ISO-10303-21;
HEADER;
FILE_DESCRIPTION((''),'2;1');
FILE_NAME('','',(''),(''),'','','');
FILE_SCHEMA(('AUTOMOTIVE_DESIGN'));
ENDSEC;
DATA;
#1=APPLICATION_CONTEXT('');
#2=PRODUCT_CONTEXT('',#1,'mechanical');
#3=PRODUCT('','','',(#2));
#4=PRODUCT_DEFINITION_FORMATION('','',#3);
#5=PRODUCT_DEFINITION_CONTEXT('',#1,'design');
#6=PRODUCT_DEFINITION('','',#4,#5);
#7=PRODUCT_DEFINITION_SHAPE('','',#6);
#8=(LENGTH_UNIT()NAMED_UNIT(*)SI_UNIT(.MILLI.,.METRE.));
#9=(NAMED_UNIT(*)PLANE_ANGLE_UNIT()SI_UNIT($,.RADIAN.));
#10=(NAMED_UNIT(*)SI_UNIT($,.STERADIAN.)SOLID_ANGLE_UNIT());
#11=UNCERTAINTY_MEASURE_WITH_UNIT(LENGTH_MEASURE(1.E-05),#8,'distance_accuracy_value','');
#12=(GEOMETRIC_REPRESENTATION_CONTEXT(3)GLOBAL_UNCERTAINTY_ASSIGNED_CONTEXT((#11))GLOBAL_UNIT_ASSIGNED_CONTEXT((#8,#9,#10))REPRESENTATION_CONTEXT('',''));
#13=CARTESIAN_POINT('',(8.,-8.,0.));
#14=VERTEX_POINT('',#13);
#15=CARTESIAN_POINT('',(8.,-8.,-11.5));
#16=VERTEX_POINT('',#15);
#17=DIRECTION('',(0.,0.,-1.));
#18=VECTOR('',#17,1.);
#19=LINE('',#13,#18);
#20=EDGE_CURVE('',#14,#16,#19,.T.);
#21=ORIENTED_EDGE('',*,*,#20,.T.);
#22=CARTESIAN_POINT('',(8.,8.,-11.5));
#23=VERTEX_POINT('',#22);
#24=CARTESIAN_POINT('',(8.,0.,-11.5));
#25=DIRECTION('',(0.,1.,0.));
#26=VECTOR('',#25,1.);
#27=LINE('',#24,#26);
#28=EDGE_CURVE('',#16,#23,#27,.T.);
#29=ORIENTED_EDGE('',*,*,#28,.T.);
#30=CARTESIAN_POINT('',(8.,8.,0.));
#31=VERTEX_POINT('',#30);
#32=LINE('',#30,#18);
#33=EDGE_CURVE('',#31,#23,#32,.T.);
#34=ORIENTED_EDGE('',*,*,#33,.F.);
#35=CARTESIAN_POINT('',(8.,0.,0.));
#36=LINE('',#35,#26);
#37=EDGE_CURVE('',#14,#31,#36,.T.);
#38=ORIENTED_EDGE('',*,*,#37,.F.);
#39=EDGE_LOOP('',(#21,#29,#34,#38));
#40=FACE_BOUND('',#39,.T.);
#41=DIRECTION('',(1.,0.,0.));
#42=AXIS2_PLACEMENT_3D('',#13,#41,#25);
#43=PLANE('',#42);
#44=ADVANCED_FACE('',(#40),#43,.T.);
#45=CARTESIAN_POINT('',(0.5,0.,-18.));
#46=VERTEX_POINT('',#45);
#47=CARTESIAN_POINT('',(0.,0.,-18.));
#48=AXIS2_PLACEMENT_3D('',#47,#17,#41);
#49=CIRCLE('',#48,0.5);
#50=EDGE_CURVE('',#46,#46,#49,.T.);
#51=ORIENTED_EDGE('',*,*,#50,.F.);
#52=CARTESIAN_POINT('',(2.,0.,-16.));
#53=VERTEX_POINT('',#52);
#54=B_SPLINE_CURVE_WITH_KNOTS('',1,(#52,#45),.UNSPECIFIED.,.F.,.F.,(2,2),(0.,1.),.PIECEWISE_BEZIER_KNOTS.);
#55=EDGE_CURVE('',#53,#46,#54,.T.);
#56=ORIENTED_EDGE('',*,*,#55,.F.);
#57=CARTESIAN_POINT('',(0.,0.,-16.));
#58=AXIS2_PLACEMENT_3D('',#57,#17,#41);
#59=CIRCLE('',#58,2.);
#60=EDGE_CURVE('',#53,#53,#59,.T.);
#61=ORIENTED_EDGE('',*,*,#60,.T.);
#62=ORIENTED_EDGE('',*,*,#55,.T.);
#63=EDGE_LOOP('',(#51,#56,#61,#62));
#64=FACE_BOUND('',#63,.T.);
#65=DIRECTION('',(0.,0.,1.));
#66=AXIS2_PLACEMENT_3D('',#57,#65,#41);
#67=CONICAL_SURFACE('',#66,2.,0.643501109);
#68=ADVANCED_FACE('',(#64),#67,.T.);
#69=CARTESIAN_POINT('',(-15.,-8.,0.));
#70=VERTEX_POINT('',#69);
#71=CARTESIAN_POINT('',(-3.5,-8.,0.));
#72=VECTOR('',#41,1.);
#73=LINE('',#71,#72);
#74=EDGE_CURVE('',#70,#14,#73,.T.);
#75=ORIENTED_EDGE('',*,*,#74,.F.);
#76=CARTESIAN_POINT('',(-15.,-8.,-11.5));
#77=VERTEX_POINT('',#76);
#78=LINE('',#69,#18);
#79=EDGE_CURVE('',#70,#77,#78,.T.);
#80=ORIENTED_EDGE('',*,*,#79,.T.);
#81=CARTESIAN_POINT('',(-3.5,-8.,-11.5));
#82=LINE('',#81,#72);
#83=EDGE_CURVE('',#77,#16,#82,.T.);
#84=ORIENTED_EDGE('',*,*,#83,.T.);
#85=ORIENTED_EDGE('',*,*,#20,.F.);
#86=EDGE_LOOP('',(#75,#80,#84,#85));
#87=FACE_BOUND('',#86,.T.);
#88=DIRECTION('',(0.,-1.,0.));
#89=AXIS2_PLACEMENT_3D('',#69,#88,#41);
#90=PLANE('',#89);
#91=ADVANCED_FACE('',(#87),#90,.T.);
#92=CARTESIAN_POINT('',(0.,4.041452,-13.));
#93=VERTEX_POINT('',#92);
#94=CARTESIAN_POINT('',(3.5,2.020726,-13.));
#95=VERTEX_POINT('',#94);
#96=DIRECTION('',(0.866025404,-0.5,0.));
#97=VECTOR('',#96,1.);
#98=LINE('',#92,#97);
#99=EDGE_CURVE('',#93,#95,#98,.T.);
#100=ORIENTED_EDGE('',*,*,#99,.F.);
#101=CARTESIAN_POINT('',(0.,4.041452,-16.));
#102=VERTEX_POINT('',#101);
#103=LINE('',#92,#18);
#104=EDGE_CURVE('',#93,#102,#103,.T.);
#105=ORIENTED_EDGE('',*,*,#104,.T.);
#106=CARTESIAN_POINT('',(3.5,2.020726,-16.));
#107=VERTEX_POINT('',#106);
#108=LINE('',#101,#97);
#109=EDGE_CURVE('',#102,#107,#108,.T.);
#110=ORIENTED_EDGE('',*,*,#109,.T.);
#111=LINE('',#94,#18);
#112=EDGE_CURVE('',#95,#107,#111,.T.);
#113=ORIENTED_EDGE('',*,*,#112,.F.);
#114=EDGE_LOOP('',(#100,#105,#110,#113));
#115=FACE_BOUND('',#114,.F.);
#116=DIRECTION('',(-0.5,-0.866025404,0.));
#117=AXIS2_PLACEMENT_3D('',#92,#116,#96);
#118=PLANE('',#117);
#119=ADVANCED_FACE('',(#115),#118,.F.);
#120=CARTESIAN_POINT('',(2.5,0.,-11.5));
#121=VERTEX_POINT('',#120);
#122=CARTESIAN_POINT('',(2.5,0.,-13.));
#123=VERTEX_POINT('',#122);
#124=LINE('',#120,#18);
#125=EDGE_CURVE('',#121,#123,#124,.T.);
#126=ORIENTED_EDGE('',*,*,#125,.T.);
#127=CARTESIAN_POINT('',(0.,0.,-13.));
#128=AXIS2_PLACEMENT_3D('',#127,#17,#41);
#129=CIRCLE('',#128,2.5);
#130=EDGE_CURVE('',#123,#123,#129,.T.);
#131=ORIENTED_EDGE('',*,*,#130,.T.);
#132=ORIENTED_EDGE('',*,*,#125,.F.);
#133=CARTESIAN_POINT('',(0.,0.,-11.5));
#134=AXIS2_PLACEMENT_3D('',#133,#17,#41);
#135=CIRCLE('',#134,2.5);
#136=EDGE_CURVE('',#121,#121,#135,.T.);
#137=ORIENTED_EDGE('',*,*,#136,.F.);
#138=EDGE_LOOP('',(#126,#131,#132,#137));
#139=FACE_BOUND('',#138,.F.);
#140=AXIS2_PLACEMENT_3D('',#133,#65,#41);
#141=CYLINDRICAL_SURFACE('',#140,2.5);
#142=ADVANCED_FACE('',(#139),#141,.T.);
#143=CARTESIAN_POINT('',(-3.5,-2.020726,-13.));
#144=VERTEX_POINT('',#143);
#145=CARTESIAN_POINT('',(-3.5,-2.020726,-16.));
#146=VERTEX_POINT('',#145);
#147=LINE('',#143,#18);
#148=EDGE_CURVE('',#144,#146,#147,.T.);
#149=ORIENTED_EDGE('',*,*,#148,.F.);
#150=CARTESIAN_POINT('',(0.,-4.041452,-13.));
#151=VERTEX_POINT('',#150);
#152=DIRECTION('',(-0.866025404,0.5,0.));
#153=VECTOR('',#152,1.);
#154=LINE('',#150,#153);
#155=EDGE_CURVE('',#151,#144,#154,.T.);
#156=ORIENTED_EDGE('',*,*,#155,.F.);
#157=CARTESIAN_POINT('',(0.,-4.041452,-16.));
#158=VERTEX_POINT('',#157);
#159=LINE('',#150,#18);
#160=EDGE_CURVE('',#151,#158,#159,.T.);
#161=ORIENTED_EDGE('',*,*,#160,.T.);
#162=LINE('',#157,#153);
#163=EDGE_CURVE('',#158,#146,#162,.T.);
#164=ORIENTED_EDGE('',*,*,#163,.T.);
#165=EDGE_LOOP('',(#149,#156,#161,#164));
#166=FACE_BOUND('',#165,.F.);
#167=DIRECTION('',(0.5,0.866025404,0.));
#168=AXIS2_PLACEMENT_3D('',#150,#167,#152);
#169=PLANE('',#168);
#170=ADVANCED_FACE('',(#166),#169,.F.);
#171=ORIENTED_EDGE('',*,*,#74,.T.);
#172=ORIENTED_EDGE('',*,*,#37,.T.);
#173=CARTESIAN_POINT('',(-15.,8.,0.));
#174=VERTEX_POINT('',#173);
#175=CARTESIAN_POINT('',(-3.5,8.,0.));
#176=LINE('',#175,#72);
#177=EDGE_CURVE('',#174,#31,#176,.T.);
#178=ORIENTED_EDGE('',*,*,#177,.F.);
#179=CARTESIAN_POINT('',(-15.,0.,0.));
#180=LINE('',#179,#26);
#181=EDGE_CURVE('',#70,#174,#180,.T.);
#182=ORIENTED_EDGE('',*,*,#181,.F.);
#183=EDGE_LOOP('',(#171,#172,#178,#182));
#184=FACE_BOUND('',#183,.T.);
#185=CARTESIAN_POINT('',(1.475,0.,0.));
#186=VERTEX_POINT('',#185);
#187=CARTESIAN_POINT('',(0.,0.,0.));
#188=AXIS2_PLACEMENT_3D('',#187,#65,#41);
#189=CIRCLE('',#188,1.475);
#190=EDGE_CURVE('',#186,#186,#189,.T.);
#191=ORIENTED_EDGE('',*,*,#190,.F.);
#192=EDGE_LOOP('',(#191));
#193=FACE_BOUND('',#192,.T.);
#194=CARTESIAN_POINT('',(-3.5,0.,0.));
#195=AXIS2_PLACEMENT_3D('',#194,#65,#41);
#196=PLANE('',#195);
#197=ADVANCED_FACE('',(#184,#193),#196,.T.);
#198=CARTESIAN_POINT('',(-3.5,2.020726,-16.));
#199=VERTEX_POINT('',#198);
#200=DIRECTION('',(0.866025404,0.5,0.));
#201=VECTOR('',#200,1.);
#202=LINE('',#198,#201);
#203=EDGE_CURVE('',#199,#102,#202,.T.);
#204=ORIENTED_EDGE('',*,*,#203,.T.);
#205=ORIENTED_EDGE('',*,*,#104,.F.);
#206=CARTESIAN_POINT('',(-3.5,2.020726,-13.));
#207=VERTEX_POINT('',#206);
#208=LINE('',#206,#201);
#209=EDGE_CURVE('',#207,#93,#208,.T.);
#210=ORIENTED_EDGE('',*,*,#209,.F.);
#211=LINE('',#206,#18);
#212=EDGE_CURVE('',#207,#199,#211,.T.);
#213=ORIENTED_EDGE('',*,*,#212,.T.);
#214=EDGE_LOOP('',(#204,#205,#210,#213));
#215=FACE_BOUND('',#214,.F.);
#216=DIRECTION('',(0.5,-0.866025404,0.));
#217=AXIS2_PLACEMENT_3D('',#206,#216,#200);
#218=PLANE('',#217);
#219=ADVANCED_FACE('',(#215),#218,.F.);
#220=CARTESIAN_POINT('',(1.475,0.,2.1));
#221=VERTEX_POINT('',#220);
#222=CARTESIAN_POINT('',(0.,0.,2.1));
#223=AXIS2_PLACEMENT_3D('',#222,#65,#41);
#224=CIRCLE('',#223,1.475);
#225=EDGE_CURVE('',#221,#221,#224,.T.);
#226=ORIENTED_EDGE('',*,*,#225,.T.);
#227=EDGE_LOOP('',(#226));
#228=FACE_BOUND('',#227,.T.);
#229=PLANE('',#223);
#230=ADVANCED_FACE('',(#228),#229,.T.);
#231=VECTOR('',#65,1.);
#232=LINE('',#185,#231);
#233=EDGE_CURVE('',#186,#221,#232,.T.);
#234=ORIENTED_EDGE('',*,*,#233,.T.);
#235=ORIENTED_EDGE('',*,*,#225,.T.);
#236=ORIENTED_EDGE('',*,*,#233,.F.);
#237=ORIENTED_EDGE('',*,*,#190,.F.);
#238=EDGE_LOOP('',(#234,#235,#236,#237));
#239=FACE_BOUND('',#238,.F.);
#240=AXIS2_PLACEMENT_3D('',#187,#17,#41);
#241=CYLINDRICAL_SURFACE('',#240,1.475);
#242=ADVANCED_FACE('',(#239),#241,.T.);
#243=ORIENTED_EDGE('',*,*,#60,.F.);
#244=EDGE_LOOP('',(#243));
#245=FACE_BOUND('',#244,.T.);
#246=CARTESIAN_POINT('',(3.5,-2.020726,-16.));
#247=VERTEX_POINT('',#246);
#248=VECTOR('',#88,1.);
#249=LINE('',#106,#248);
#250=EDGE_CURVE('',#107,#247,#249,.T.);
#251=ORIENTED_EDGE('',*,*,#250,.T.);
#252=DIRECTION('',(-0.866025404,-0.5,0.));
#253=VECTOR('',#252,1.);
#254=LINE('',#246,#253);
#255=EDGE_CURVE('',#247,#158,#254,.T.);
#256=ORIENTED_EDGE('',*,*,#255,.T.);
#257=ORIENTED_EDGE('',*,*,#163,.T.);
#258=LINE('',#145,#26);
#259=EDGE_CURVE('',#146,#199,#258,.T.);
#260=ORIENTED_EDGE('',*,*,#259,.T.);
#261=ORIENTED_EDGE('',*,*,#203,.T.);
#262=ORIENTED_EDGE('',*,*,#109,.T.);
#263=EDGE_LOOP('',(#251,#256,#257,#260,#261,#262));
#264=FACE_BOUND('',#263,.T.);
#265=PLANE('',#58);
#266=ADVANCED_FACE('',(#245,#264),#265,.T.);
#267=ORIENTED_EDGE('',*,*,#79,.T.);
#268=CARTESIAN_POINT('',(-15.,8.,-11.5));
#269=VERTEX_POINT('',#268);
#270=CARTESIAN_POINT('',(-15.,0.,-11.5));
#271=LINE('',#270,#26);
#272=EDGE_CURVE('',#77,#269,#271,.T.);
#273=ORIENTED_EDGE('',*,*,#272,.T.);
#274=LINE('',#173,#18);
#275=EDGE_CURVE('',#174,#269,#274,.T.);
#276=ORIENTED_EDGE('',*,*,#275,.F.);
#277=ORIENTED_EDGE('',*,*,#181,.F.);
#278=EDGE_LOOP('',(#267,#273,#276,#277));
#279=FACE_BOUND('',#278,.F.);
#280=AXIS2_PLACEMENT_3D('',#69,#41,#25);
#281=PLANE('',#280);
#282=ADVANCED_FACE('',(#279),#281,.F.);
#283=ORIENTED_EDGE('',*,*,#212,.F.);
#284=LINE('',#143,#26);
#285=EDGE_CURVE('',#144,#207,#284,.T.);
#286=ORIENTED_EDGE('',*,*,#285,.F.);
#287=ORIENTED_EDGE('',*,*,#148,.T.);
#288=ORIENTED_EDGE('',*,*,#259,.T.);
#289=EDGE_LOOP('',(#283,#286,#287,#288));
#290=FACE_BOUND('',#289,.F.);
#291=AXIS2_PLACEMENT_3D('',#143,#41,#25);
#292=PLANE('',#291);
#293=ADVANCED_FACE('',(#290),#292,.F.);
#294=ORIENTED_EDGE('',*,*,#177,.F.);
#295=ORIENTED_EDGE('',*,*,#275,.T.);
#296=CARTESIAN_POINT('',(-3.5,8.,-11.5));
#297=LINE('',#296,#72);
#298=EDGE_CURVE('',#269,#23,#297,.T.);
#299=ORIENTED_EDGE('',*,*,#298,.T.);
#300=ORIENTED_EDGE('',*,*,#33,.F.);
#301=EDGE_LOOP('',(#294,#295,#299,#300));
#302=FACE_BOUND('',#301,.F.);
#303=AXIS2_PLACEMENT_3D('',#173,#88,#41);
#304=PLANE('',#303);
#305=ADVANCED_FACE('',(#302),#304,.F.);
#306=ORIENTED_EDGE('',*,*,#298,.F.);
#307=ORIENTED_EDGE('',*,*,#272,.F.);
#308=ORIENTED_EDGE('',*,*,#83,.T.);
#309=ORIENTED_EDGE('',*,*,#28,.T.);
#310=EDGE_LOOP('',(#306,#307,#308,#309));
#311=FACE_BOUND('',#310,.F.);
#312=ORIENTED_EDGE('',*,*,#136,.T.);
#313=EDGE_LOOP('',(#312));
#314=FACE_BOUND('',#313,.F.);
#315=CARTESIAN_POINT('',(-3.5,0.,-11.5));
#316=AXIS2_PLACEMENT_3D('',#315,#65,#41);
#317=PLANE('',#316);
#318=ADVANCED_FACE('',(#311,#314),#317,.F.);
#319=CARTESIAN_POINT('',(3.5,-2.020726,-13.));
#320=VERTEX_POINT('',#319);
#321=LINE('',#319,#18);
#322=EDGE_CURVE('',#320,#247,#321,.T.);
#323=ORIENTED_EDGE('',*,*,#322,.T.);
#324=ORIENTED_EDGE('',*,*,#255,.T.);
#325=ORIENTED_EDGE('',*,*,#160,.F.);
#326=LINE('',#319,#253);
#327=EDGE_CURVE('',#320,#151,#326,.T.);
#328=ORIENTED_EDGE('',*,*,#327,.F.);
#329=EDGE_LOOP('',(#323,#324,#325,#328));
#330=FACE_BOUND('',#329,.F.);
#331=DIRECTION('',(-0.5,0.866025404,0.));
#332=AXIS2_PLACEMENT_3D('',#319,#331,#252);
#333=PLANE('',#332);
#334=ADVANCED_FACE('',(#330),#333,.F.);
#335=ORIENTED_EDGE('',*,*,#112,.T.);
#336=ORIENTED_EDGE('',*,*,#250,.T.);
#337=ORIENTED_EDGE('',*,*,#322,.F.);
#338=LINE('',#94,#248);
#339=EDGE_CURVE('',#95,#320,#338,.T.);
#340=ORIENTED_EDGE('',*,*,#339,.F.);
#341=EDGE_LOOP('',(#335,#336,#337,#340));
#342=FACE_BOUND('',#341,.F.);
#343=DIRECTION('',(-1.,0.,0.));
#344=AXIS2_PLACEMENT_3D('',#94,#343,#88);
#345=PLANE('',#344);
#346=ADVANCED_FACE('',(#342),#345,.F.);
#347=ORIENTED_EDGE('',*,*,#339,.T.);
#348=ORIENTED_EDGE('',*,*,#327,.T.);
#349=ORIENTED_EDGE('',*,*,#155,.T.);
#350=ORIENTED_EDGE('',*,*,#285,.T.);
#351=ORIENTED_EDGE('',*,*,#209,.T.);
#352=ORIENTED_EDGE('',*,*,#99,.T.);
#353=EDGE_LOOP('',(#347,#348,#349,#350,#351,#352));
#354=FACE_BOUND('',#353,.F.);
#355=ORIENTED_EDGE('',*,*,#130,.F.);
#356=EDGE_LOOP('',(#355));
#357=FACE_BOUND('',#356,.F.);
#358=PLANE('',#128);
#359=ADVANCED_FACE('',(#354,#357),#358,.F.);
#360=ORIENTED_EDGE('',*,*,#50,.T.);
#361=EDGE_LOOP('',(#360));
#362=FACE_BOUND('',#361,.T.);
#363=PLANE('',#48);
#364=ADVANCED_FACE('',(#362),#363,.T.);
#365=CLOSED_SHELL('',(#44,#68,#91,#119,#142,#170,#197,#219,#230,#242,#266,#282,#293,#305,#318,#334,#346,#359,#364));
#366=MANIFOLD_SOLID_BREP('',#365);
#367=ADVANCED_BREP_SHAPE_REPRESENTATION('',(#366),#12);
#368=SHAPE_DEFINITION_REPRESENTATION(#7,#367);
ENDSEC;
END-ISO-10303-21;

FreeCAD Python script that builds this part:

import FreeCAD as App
import Part
import Sketcher

V = App.Vector
Q = App.Units.Quantity


def add_polygon(sketch, points):
    """Adds a closed chain of lines whose ends are joined by coincident constraints."""
    first, n = sketch.GeometryCount, len(points)
    for a, b in zip(points, points[1:] + points[:1]):
        sketch.addGeometry(Part.LineSegment(App.Vector(*a, 0), App.Vector(*b, 0)), False)
    for i in range(n):
        sketch.addConstraint(Sketcher.Constraint("Coincident", first + i, 2, first + (i + 1) % n, 1))

doc = App.newDocument("Part")
body = doc.addObject("PartDesign::Body", "Body")

# Sketch on XY plane
sketch1 = body.newObject("Sketcher::SketchObject", "Sketch")
sketch1.AttachmentSupport = (doc.getObject("XY_Plane"), [""])
sketch1.MapMode = "FlatFace"
sketch1.addGeometry(Part.Circle(V(0, 0, 0), V(0, 0, 1), 1.5), False)
sketch1.addConstraint(Sketcher.Constraint("Coincident", 0, 3, -1, 1))
sketch1.addConstraint(Sketcher.Constraint("Diameter", 0, Q("2.95 mm")))
pad1 = body.newObject("PartDesign::Pad", "Pad")
pad1.Profile = sketch1
pad1.Length = 2.1

# Sketch on XY plane
sketch2 = body.newObject("Sketcher::SketchObject", "Sketch001")
sketch2.AttachmentSupport = (doc.getObject("XY_Plane"), [""])
sketch2.MapMode = "FlatFace"
add_polygon(sketch2, [(-15, 8), (-15, -8), (8, -8), (8, 8)])  # lines 0-3
sketch2.addConstraint(Sketcher.Constraint("Vertical", 0))
sketch2.addConstraint(Sketcher.Constraint("Horizontal", 1))
sketch2.addConstraint(Sketcher.Constraint("Vertical", 2))
sketch2.addConstraint(Sketcher.Constraint("Horizontal", 3))
sketch2.addConstraint(Sketcher.Constraint("DistanceX", 1, 1, 1, 2, Q("23 mm")))
sketch2.addConstraint(Sketcher.Constraint("DistanceY", 0, 2, 0, 1, Q("16 mm")))
sketch2.addConstraint(Sketcher.Constraint("DistanceX", 0, 2, -1, 1, Q("15 mm")))
sketch2.addConstraint(Sketcher.Constraint("DistanceY", 0, 2, -1, 1, Q("8 mm")))
pad2 = body.newObject("PartDesign::Pad", "Pad001")
pad2.Profile = sketch2
pad2.Length = 11.5
pad2.Reversed = True

# Sketch on XY plane
sketch3 = body.newObject("Sketcher::SketchObject", "Sketch002")
sketch3.AttachmentSupport = (doc.getObject("XY_Plane"), [""])
sketch3.MapMode = "FlatFace"
sketch3.AttachmentOffset = App.Placement(V(0, 0, -11.5), App.Rotation())
sketch3.addGeometry(Part.Circle(V(0, 0, 0), V(0, 0, 1), 2.5), False)
sketch3.addConstraint(Sketcher.Constraint("Coincident", 0, 3, -1, 1))
sketch3.addConstraint(Sketcher.Constraint("Diameter", 0, Q("5 mm")))
pad3 = body.newObject("PartDesign::Pad", "Pad002")
pad3.Profile = sketch3
pad3.Length = 1.5
pad3.Reversed = True

# Sketch on XY plane
sketch4 = body.newObject("Sketcher::SketchObject", "Sketch003")
sketch4.AttachmentSupport = (doc.getObject("XY_Plane"), [""])
sketch4.MapMode = "FlatFace"
sketch4.AttachmentOffset = App.Placement(V(0, 0, -13), App.Rotation())
add_polygon(sketch4, [(3.5, 2), (3.5, -2), (0, -4), (-3.5, -2), (-3.5, 2), (0, 4)])  # lines 0-5
sketch4.addConstraint(Sketcher.Constraint("Vertical", 0))
sketch4.addConstraint(Sketcher.Constraint("Vertical", 3))
sketch4.addConstraint(Sketcher.Constraint("Symmetric", 0, 2, 3, 2, -1, 1))
sketch4.addConstraint(Sketcher.Constraint("Symmetric", 1, 2, 4, 2, -1, 1))
sketch4.addConstraint(Sketcher.Constraint("PointOnObject", 1, 2, -2))
sketch4.addConstraint(Sketcher.Constraint("Parallel", 2, 5))
sketch4.addConstraint(Sketcher.Constraint("Horizontal", 0, 2, 2, 2))
sketch4.addConstraint(Sketcher.Constraint("Angle", 1, Q("-150 deg")))
sketch4.addConstraint(Sketcher.Constraint("DistanceX", 2, 2, 0, 2, Q("7 mm")))
sketch4.addConstraint(Sketcher.Constraint("DistanceY", 0, 2, 0, 1, Q("4.041452 mm")))
pad4 = body.newObject("PartDesign::Pad", "Pad003")
pad4.Profile = sketch4
pad4.Length = 3
pad4.Reversed = True

# Sketch on XY plane
sketch5 = body.newObject("Sketcher::SketchObject", "Sketch004")
sketch5.AttachmentSupport = (doc.getObject("XY_Plane"), [""])
sketch5.MapMode = "FlatFace"
sketch5.AttachmentOffset = App.Placement(V(0, 0, -16), App.Rotation())
sketch5.addGeometry(Part.Circle(V(0, 0, 0), V(0, 0, 1), 2), False)
sketch5.addConstraint(Sketcher.Constraint("Coincident", 0, 3, -1, 1))
sketch5.addConstraint(Sketcher.Constraint("Diameter", 0, Q("4 mm")))

# Sketch on XY plane
sketch6 = body.newObject("Sketcher::SketchObject", "Sketch005")
sketch6.AttachmentSupport = (doc.getObject("XY_Plane"), [""])
sketch6.MapMode = "FlatFace"
sketch6.AttachmentOffset = App.Placement(V(0, 0, -18), App.Rotation())
sketch6.addGeometry(Part.Circle(V(0, 0, 0), V(0, 0, 1), 0.5), False)
sketch6.addConstraint(Sketcher.Constraint("Coincident", 0, 3, -1, 1))
sketch6.addConstraint(Sketcher.Constraint("Diameter", 0, Q("1 mm")))

additiveloft = body.newObject("PartDesign::AdditiveLoft", "AdditiveLoft")
additiveloft.Profile = sketch5
additiveloft.Sections = [sketch6]

doc.recompute()
